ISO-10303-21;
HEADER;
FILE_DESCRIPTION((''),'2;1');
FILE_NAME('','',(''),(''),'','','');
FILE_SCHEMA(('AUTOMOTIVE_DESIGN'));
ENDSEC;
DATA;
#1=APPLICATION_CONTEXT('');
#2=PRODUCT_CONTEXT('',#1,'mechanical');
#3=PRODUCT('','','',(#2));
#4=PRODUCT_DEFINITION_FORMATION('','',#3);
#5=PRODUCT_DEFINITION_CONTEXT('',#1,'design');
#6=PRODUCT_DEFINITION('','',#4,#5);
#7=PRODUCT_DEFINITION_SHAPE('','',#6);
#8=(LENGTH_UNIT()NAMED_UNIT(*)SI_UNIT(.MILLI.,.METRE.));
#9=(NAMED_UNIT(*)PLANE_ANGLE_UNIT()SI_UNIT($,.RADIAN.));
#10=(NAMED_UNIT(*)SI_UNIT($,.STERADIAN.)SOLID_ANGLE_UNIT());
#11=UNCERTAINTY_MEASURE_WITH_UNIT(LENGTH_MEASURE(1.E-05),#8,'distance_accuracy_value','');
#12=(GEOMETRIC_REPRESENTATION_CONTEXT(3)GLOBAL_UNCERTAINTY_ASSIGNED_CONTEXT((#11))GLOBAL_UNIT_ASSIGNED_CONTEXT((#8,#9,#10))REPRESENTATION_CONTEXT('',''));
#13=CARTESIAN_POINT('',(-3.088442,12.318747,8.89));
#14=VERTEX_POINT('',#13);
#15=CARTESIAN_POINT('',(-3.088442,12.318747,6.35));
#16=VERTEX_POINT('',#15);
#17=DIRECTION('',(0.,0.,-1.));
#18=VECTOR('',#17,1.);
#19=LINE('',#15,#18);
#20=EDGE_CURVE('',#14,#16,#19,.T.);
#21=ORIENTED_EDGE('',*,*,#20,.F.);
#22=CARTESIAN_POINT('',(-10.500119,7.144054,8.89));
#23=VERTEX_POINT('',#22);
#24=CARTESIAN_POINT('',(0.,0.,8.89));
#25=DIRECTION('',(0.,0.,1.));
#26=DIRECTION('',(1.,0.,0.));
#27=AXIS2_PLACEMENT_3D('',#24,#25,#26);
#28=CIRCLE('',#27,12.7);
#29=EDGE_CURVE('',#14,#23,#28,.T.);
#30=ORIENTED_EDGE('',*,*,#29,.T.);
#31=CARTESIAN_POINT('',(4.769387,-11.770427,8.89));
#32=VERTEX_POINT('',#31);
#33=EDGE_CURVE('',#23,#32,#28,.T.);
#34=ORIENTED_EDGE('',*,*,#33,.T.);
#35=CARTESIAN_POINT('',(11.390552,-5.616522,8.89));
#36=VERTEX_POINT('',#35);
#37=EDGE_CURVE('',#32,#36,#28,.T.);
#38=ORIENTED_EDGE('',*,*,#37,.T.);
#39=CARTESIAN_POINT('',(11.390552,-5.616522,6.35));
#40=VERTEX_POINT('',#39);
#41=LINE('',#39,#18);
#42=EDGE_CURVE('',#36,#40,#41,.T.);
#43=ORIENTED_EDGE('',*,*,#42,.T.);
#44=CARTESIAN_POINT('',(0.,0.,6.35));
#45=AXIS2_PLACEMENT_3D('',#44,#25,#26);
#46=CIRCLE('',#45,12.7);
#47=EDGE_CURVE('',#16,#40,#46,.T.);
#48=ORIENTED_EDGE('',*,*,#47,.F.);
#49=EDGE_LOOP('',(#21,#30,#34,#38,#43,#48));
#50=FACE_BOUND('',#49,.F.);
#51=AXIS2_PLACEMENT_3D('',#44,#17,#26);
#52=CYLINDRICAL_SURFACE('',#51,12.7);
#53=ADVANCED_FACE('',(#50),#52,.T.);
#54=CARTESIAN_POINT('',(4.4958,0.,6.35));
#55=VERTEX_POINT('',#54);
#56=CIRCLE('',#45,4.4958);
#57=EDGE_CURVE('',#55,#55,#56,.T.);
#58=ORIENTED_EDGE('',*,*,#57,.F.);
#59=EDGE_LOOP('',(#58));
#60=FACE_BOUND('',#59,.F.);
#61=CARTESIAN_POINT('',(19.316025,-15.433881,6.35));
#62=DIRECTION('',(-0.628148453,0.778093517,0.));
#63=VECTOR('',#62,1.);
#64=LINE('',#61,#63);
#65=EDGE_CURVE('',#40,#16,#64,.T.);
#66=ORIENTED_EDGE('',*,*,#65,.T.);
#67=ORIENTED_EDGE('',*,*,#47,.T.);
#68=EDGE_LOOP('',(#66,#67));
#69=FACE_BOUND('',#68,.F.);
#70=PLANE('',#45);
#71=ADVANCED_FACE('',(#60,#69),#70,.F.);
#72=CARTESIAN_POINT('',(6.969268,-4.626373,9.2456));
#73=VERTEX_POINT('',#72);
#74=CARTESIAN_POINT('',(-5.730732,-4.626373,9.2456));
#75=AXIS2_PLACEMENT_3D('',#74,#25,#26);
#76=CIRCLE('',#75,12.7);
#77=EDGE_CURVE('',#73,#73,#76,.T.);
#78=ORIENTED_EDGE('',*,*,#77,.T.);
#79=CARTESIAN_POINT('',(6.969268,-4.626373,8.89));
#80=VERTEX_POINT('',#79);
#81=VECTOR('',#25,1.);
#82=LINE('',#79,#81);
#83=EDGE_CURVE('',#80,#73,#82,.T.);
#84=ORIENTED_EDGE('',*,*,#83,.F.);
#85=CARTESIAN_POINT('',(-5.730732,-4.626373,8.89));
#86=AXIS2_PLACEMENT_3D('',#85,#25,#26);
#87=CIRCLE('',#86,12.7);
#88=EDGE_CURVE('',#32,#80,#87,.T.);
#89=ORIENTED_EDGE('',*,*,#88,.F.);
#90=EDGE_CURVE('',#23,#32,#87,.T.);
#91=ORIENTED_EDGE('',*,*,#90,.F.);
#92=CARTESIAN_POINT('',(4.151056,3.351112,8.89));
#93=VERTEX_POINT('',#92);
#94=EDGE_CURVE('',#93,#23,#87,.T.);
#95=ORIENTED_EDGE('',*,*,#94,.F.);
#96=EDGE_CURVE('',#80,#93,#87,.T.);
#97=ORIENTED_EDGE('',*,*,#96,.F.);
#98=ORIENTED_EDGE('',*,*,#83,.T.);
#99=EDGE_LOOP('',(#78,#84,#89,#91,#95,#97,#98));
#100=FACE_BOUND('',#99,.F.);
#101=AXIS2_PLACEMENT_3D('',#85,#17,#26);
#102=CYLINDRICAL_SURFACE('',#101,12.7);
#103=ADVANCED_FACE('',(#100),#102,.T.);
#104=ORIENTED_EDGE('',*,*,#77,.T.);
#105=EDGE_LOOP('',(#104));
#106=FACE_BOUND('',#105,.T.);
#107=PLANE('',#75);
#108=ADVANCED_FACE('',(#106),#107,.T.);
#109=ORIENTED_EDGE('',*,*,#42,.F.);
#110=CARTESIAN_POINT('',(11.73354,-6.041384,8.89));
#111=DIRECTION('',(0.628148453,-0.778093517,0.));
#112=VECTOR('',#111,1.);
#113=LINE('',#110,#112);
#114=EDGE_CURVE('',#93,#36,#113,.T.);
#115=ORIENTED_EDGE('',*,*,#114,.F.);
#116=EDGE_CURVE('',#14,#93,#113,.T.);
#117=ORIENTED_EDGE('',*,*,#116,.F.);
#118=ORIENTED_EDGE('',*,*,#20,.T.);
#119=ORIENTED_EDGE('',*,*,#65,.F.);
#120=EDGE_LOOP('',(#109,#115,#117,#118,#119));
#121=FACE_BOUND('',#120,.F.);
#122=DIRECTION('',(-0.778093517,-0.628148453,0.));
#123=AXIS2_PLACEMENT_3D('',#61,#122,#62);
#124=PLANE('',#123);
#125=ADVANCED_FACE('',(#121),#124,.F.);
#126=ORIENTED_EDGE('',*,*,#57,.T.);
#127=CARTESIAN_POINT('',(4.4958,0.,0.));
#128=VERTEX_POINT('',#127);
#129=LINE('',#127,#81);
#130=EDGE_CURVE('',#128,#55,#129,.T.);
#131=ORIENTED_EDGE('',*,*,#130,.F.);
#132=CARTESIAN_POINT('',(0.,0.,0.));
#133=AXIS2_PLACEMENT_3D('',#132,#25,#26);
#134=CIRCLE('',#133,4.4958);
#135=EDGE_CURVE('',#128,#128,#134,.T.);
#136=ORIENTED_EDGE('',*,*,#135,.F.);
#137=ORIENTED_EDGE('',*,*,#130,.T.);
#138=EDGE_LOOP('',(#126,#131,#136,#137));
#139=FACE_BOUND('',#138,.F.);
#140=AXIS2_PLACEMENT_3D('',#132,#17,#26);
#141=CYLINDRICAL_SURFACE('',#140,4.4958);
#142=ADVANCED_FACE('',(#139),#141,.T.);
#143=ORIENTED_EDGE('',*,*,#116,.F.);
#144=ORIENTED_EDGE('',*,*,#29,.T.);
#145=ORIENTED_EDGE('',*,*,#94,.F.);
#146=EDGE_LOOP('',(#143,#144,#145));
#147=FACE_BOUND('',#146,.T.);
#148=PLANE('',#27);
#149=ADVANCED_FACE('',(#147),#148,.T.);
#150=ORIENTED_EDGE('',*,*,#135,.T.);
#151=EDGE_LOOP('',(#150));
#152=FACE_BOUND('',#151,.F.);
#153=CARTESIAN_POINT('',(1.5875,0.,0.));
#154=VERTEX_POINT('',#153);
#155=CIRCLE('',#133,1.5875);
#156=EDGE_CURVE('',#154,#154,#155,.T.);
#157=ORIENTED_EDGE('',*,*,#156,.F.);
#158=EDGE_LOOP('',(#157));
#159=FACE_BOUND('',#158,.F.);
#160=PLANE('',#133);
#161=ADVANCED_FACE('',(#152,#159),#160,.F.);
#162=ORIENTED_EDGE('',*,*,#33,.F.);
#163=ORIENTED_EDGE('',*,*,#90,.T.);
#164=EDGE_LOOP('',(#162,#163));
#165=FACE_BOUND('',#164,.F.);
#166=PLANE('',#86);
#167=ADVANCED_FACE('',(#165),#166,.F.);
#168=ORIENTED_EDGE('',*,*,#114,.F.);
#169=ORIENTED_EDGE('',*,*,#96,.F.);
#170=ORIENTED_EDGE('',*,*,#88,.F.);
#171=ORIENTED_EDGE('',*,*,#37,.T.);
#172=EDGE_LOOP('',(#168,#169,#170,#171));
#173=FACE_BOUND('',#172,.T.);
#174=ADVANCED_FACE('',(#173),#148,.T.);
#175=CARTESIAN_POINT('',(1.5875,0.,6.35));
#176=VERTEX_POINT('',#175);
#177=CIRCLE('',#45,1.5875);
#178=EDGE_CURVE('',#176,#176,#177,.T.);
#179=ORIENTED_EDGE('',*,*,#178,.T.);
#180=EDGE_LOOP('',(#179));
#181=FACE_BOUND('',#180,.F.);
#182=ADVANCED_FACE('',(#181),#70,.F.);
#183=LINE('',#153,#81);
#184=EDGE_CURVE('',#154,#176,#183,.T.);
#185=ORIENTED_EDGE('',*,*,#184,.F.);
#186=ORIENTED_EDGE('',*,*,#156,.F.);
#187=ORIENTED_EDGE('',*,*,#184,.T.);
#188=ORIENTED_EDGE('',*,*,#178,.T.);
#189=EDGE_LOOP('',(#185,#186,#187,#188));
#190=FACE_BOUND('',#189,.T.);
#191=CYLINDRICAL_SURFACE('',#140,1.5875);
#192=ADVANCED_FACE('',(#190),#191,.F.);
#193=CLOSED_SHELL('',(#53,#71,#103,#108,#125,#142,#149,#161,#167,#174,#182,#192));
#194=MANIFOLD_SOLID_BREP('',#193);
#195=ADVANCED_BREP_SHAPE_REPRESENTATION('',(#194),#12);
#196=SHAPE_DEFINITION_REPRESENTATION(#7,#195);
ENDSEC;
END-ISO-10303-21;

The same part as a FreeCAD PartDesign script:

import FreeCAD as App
import Part
import Sketcher
from FreeCAD import Vector
Q = App.Units.Quantity


def add_polygon(sketch, points):
    """Adds a closed chain of lines whose ends are joined by coincident constraints."""
    first, n = sketch.GeometryCount, len(points)
    for a, b in zip(points, points[1:] + points[:1]):
        sketch.addGeometry(Part.LineSegment(App.Vector(*a, 0), App.Vector(*b, 0)), False)
    for i in range(n):
        sketch.addConstraint(Sketcher.Constraint("Coincident", first + i, 2, first + (i + 1) % n, 1))

doc = App.newDocument("Part")
body = doc.addObject("PartDesign::Body", "Body")

sketch1 = doc.addObject("Sketcher::SketchObject", "Sketch")
body.addObject(sketch1)
sketch1.AttachmentSupport = (doc.XY_Plane, [""])
sketch1.MapMode = "FlatFace"
sketch1.addGeometry(Part.Circle(Vector(0, 0, 0), Vector(0, 0, 1), 4.4958), False)
sketch1.addGeometry(Part.Circle(Vector(0, 0, 0), Vector(0, 0, 1), 1.5875), False)
sketch1.addConstraint(Sketcher.Constraint("Coincident", 0, 3, -1, 1))
sketch1.addConstraint(Sketcher.Constraint("Coincident", 1, 3, -1, 1))
sketch1.addConstraint(Sketcher.Constraint("Diameter", 0, Q("0.354 in")))
sketch1.addConstraint(Sketcher.Constraint("Diameter", 1, Q("0.125 in")))
pad1 = doc.addObject("PartDesign::Pad", "Pad")
body.addObject(pad1)
pad1.Profile = sketch1
pad1.Length = Q("0.25 in")

sketch2 = doc.addObject("Sketcher::SketchObject", "Sketch001")
body.addObject(sketch2)
sketch2.AttachmentSupport = (doc.XY_Plane, [""])
sketch2.MapMode = "FlatFace"
sketch2.AttachmentOffset = App.Placement(Vector(0, 0, 0.25 * 25.4), App.Rotation())
sketch2.addGeometry(Part.Circle(Vector(0, 0, 0), Vector(0, 0, 1), 12.7), False)
sketch2.addConstraint(Sketcher.Constraint("Coincident", 0, 3, -1, 1))
sketch2.addConstraint(Sketcher.Constraint("Diameter", 0, Q("1 in")))
pad2 = doc.addObject("PartDesign::Pad", "Pad001")
body.addObject(pad2)
pad2.Profile = sketch2
pad2.Length = Q("0.1 in")

sketch3 = doc.addObject("Sketcher::SketchObject", "Sketch002")
body.addObject(sketch3)
sketch3.AttachmentSupport = (doc.XY_Plane, [""])
sketch3.MapMode = "FlatFace"
sketch3.AttachmentOffset = App.Placement(Vector(0, 0, 0.25 * 25.4), App.Rotation())
add_polygon(sketch3, [(21.399127, 20.925693), (19.316025, -15.433881), (-10.036758, 20.925693)])
sketch3.addConstraint(Sketcher.Constraint("Horizontal", 2))
sketch3.addConstraint(Sketcher.Constraint("DistanceX", 2, 1, 2, 2, Q("31.435885 mm")))
sketch3.addConstraint(Sketcher.Constraint("DistanceY", 0, 2, -1, 1, Q("15.433881 mm")))
sketch3.addConstraint(Sketcher.Constraint("DistanceX", 1, 2, -1, 1, Q("10.036758 mm")))
sketch3.addConstraint(Sketcher.Constraint("Distance", 0, Q("36.419197 mm")))
sketch3.addConstraint(Sketcher.Constraint("Distance", 1, Q("46.729054 mm")))
pocket1 = doc.addObject("PartDesign::Pocket", "Pocket")
body.addObject(pocket1)
pocket1.Profile = sketch3
pocket1.Type = "ThroughAll"
pocket1.Reversed = True

sketch4 = doc.addObject("Sketcher::SketchObject", "Sketch003")
body.addObject(sketch4)
sketch4.AttachmentSupport = (doc.XY_Plane, [""])
sketch4.MapMode = "FlatFace"
sketch4.AttachmentOffset = App.Placement(Vector(0, 0, 0.35 * 25.4), App.Rotation())
sketch4.addGeometry(Part.Circle(Vector(-5.730732, -4.626373, 0), Vector(0, 0, 1), 12.7), False)
sketch4.addConstraint(Sketcher.Constraint("Diameter", 0, Q("1 in")))
sketch4.addConstraint(Sketcher.Constraint("DistanceX", 0, 3, -1, 1, Q("5.730732 mm")))
sketch4.addConstraint(Sketcher.Constraint("DistanceY", 0, 3, -1, 1, Q("4.626373 mm")))
pad3 = doc.addObject("PartDesign::Pad", "Pad002")
body.addObject(pad3)
pad3.Profile = sketch4
pad3.Length = Q("0.014 in")

doc.recompute()
